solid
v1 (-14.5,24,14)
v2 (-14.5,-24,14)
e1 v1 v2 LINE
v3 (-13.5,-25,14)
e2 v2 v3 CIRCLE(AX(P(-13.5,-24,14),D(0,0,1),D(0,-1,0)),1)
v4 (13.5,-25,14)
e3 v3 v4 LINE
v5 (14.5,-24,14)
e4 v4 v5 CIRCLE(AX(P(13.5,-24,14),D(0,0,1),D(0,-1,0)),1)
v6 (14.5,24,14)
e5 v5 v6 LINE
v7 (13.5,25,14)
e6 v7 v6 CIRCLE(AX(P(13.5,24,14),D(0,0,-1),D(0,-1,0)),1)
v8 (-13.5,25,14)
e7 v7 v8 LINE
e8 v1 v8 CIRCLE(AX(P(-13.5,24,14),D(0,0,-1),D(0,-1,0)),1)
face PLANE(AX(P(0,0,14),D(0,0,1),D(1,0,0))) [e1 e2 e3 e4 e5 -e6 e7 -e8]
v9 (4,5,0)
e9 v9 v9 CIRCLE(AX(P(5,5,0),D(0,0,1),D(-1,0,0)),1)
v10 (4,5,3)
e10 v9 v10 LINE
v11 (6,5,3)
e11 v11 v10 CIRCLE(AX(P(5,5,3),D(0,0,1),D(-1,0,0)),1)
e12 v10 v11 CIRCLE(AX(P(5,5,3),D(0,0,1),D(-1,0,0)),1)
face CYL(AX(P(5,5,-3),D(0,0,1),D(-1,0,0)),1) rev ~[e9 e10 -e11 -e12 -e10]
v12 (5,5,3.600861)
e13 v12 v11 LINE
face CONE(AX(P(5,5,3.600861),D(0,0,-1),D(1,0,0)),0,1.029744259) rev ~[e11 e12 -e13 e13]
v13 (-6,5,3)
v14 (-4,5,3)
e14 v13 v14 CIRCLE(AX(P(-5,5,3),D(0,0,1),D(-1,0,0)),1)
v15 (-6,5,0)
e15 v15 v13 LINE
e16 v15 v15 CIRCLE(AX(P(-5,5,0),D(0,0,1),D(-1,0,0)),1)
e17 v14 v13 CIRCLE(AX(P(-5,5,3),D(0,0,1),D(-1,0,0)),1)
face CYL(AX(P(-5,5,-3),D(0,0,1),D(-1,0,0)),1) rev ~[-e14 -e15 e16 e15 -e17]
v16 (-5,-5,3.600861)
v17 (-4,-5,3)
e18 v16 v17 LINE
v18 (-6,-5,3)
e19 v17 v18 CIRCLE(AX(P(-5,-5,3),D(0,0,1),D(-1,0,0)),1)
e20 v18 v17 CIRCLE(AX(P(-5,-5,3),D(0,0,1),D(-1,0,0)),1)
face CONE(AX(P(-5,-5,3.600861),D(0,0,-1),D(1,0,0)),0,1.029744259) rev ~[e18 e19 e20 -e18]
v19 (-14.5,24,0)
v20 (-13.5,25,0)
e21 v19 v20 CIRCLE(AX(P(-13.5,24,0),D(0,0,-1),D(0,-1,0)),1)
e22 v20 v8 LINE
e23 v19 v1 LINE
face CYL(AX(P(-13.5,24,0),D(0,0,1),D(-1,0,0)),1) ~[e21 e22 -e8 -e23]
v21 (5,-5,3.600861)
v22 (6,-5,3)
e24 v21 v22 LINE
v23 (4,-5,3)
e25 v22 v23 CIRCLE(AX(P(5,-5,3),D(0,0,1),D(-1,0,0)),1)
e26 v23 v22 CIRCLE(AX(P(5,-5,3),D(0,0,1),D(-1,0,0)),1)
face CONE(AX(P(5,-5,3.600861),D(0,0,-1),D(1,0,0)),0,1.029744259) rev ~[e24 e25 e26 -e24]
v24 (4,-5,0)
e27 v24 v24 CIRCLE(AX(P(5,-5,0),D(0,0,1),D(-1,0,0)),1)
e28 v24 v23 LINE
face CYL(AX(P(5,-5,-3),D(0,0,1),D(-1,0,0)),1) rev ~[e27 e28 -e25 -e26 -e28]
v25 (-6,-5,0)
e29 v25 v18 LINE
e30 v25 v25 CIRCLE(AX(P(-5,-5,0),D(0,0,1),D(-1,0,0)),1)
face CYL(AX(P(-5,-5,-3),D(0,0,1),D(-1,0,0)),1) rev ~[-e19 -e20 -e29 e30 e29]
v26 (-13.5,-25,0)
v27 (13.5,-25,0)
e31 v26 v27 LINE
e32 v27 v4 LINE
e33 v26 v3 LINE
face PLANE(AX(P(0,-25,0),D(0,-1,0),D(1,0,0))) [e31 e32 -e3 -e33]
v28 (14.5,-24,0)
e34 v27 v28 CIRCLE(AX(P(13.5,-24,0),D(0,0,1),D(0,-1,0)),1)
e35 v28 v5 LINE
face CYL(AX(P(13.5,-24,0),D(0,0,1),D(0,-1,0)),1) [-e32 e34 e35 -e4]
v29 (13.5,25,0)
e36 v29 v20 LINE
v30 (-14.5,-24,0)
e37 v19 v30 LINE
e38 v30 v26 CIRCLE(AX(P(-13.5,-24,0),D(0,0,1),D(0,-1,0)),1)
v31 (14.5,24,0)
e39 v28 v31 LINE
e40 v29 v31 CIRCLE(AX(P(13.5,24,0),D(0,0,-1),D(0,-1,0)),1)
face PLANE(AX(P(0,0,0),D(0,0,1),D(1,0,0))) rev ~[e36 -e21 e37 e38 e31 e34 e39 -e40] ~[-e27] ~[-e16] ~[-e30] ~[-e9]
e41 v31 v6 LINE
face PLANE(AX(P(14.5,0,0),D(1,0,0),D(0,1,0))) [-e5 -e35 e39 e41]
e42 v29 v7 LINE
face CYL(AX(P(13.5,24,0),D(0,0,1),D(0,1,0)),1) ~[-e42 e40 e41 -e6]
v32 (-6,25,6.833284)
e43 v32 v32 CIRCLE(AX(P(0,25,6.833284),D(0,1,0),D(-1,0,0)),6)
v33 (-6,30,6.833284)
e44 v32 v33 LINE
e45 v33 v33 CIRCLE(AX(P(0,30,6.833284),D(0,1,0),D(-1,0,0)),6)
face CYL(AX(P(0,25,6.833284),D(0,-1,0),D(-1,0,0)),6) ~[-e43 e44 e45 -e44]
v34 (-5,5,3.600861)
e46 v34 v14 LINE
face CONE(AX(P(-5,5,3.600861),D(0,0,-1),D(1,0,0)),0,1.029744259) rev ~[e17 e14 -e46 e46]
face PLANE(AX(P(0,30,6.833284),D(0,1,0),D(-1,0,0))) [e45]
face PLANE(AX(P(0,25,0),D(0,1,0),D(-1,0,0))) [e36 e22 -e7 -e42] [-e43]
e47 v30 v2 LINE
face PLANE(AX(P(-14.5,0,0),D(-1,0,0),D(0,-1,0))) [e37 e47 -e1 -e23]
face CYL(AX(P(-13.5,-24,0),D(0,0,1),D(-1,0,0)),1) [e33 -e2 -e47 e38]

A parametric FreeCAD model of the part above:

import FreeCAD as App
import Part
import Sketcher


def edges_at(feature, points):
    """Names of the edges that pass closest to the given points."""
    edges = feature.Shape.Edges
    near = lambda p: min(range(len(edges)), key=lambda i: edges[i].distToShape(Part.Vertex(*p))[0])
    return sorted({f"Edge{near(p) + 1}" for p in points})


def add_polygon(sketch, points):
    """Adds a closed chain of lines whose ends are joined by coincident constraints."""
    first, n = sketch.GeometryCount, len(points)
    for a, b in zip(points, points[1:] + points[:1]):
        sketch.addGeometry(Part.LineSegment(App.Vector(*a, 0), App.Vector(*b, 0)), False)
    for i in range(n):
        sketch.addConstraint(Sketcher.Constraint("Coincident", first + i, 2, first + (i + 1) % n, 1))

doc = App.newDocument("Part")
params = doc.addObject("Spreadsheet::Sheet", "Params")
for row, (alias, value) in enumerate([
    ("sketch1_width", "29 mm"),
    ("sketch1_height", "50 mm"),
    ("sketch2_height", "14 mm"),
    ("sketch3_diameter", "2 mm"),
    ("hole_diameter", "2 mm"),
    ("hole_depth", "3 mm"),
    ("fillet_radius", "1 mm"),
    ("sketch4_diameter", "12 mm"),
    ("pad1_length", "5 mm"),
], start=1):
    params.set(f"A{row}", alias)
    params.set(f"B{row}", "=" + value)
    params.setAlias(f"B{row}", alias)

body = doc.addObject("PartDesign::Body", "Body")

sketch1 = body.newObject("Sketcher::SketchObject", "Sketch")
sketch1.AttachmentSupport = (doc.getObject("XY_Plane"), [""])
sketch1.MapMode = "FlatFace"
add_polygon(sketch1, [(-14.5, 25), (-14.5, -25), (14.5, -25), (14.5, 25)])
sketch1.addConstraint([
    Sketcher.Constraint("Vertical", 0),
    Sketcher.Constraint("Horizontal", 1),
    Sketcher.Constraint("Vertical", 2),
    Sketcher.Constraint("Horizontal", 3),
    Sketcher.Constraint("Symmetric", 0, 2, 2, 2, -1, 1),
    Sketcher.Constraint("DistanceX", 1, 1, 1, 2, 29.0),
    Sketcher.Constraint("DistanceY", 0, 2, 0, 1, 50.0),
])
sketch1.setExpression("Constraints[9]", "Params.sketch1_width")
sketch1.setExpression("Constraints[10]", "Params.sketch1_height")

sketch2 = body.newObject("Sketcher::SketchObject", "Sketch001")
sketch2.AttachmentSupport = (doc.getObject("XZ_Plane"), [""])
sketch2.MapMode = "FlatFace"
sketch2.addGeometry(Part.LineSegment(App.Vector(0, 0, 0), App.Vector(0, 14, 0)), False)
sketch2.addConstraint([
    Sketcher.Constraint("Vertical", 0),
    Sketcher.Constraint("Coincident", 0, 1, -1, 1),
    Sketcher.Constraint("DistanceY", 0, 1, 0, 2, 14.0),
])
sketch2.setExpression("Constraints[2]", "Params.sketch2_height")
doc.recompute()

additivepipe = body.newObject("PartDesign::AdditivePipe", "AdditivePipe")
additivepipe.Profile = sketch1
additivepipe.Spine = (sketch2, ["Edge1"])

sketch3 = body.newObject("Sketcher::SketchObject", "Sketch002")
sketch3.AttachmentSupport = (doc.getObject("XY_Plane"), [""])
sketch3.MapMode = "FlatFace"
sketch3.addGeometry([
    Part.Circle(App.Vector(5, 5, 0), App.Vector(0, 0, 1), 1),
    Part.Circle(App.Vector(-5, 5, 0), App.Vector(0, 0, 1), 1),
    Part.Circle(App.Vector(-5, -5, 0), App.Vector(0, 0, 1), 1),
    Part.Circle(App.Vector(5, -5, 0), App.Vector(0, 0, 1), 1),
], False)
sketch3.addConstraint([
    Sketcher.Constraint("Equal", 0, 1),
    Sketcher.Constraint("Equal", 1, 2),
    Sketcher.Constraint("Equal", 2, 3),
    Sketcher.Constraint("Symmetric", 0, 3, 2, 3, -1, 1),
    Sketcher.Constraint("Symmetric", 1, 3, 3, 3, -1, 1),
    Sketcher.Constraint("Symmetric", 0, 3, 1, 3, -2),
    Sketcher.Constraint("Diameter", 0, 2.0),
    Sketcher.Constraint("DistanceX", -1, 1, 0, 3, 5.0),
    Sketcher.Constraint("DistanceY", -1, 1, 0, 3, 5.0),
])
sketch3.setExpression("Constraints[6]", "Params.sketch3_diameter")
doc.recompute()
hole = body.newObject("PartDesign::Hole", "Hole")
hole.Profile = sketch3
hole.ThreadType = "None"
hole.setExpression("Diameter", "Params.hole_diameter")
hole.DepthType = "Dimension"
hole.setExpression("Depth", "Params.hole_depth")
hole.DrillPoint = "Angled"
hole.DrillPointAngle = 118
hole.Reversed = True
doc.recompute()

fillet = body.newObject("PartDesign::Fillet", "Fillet")
fillet.Base = (hole, edges_at(hole, [
    (14.5, -25, 7),
    (-14.5, -25, 7),
    (14.5, 25, 7),
    (-14.5, 25, 7),
]))
fillet.setExpression("Radius", "Params.fillet_radius")

sketch4 = body.newObject("Sketcher::SketchObject", "Sketch003")
sketch4.AttachmentSupport = (doc.getObject("XZ_Plane"), [""])
sketch4.MapMode = "FlatFace"
sketch4.AttachmentOffset = App.Placement(App.Vector(0, 0, -25), App.Rotation())
sketch4.addGeometry(Part.Circle(App.Vector(0, 6.833284, 0), App.Vector(0, 0, 1), 6), False)
sketch4.addConstraint([
    Sketcher.Constraint("PointOnObject", 0, 3, -2),
    Sketcher.Constraint("Diameter", 0, 12.0),
    Sketcher.Constraint("DistanceY", -1, 1, 0, 3, 6.833284),
])
sketch4.setExpression("Constraints[1]", "Params.sketch4_diameter")
pad1 = body.newObject("PartDesign::Pad", "Pad")
pad1.Profile = sketch4
pad1.setExpression("Length", "Params.pad1_length")
pad1.Reversed = True

doc.recompute()
